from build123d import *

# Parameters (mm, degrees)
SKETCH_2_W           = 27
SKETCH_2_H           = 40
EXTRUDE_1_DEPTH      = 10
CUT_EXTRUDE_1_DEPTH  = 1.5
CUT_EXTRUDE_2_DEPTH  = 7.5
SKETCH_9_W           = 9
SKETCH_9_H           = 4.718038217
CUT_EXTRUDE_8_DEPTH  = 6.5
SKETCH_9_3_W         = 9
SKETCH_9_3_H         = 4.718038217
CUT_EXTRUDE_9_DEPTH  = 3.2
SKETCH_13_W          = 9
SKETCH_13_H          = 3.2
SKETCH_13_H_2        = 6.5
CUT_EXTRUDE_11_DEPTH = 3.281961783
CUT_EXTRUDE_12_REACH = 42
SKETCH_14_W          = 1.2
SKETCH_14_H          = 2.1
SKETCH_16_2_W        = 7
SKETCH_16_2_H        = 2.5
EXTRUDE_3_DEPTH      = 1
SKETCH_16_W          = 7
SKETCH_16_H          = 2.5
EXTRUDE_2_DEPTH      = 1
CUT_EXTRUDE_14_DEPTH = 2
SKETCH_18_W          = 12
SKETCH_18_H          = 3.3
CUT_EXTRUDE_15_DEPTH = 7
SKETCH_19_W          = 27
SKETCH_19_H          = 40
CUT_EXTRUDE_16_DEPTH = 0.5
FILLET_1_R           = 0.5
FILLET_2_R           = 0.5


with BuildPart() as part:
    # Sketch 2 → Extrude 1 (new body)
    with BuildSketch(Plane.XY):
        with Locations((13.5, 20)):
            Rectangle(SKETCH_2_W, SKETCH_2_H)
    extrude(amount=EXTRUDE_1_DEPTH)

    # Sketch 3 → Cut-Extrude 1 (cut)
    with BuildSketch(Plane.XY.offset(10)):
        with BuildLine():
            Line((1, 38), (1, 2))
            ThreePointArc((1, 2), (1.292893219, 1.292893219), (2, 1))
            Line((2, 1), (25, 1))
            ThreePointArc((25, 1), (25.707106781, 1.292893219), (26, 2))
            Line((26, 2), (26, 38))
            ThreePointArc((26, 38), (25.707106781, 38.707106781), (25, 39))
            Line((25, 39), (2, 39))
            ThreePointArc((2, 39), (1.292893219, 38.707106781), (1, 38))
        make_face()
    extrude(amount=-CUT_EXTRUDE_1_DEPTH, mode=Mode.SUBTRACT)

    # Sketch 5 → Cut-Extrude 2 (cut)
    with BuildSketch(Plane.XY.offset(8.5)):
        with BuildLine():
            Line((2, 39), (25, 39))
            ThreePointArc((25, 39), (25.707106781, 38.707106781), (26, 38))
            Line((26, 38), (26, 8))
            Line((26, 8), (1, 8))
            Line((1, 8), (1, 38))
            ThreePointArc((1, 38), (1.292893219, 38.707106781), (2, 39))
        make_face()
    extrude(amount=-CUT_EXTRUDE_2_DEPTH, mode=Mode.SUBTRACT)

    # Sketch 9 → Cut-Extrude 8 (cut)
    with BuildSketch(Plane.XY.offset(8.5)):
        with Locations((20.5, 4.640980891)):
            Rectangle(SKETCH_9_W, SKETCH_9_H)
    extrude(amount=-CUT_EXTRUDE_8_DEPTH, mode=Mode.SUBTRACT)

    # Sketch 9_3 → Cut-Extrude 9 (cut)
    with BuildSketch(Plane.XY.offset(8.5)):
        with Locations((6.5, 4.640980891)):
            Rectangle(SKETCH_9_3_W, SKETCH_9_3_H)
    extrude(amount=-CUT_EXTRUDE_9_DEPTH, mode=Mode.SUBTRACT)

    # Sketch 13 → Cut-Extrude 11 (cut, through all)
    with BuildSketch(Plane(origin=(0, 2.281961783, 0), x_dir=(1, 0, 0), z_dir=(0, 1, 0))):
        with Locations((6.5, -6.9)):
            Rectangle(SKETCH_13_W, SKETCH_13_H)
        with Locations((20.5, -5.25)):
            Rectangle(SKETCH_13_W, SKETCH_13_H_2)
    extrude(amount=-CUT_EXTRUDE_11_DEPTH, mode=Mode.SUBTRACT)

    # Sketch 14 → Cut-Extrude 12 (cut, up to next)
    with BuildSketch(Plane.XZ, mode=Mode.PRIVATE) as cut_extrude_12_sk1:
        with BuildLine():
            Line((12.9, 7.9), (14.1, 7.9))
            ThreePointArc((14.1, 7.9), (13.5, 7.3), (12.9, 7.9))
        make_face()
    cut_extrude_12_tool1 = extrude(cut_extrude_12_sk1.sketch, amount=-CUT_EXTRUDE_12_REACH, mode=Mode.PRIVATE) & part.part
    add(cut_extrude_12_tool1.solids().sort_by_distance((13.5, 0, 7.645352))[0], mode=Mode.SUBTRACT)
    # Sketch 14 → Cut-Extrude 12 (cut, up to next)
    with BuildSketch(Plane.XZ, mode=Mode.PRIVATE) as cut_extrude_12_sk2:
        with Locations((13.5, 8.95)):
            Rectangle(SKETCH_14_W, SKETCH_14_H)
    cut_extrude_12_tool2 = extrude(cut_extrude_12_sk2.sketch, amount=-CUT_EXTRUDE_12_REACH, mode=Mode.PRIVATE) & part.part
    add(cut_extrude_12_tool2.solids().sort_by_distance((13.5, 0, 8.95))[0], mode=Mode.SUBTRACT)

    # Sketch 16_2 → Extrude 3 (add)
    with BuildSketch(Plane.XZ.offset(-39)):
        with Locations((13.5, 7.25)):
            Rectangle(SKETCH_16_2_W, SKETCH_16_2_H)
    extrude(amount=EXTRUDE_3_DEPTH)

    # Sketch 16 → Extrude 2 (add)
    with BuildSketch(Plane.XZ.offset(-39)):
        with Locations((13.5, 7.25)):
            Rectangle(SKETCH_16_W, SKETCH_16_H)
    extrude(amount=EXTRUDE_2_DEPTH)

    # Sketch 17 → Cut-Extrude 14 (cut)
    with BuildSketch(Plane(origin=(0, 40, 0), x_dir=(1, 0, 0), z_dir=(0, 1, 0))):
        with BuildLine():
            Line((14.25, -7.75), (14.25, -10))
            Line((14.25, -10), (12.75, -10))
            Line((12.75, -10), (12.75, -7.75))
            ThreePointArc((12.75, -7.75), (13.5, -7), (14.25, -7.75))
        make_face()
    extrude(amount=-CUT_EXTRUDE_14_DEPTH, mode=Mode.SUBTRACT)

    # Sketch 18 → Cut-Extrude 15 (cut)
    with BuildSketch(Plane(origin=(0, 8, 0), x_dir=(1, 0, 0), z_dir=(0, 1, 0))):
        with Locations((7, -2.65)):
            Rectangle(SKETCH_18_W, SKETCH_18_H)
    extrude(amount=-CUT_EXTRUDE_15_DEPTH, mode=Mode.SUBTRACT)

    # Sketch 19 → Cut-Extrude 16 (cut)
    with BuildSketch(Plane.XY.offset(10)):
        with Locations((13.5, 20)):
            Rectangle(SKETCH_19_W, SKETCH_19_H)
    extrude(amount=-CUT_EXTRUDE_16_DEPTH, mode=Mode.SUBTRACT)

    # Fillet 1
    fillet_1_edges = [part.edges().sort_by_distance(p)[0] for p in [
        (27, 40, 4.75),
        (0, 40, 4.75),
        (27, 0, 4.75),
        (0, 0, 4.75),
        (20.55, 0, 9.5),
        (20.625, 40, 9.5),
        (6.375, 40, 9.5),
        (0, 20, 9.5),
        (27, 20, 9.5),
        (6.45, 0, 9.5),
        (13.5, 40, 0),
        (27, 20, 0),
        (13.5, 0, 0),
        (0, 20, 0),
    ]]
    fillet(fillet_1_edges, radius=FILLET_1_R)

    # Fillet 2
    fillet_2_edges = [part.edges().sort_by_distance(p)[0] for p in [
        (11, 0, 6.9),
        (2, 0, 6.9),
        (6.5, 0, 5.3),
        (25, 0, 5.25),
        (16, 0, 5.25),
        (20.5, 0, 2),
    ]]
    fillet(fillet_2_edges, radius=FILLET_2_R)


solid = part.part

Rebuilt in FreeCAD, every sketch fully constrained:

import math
import FreeCAD as App
import Part
import Sketcher

V = App.Vector


def edges_at(feature, points):
    """Names of the edges that pass closest to the given points."""
    edges = feature.Shape.Edges
    near = lambda p: min(range(len(edges)), key=lambda i: edges[i].distToShape(Part.Vertex(*p))[0])
    return sorted({f"Edge{near(p) + 1}" for p in points})


def add_polygon(sketch, points):
    """Adds a closed chain of lines whose ends are joined by coincident constraints."""
    first, n = sketch.GeometryCount, len(points)
    for a, b in zip(points, points[1:] + points[:1]):
        sketch.addGeometry(Part.LineSegment(App.Vector(*a, 0), App.Vector(*b, 0)), False)
    for i in range(n):
        sketch.addConstraint(Sketcher.Constraint("Coincident", first + i, 2, first + (i + 1) % n, 1))

doc = App.newDocument("Part")
params = doc.addObject("Spreadsheet::Sheet", "Params")
for row, (alias, value) in enumerate([
    ("sketch1_width", "27 mm"),
    ("sketch1_height", "40 mm"),
    ("pad1_length", "10 mm"),
    ("sketch2_radius", "1 mm"),
    ("sketch2_width", "23 mm"),
    ("sketch2_height", "36 mm"),
    ("pocket1_length", "1.5 mm"),
    ("sketch3_radius", "1 mm"),
    ("sketch3_width", "23 mm"),
    ("sketch3_height", "30 mm"),
    ("pocket2_length", "7.5 mm"),
    ("sketch4_width", "9 mm"),
    ("pocket3_length", "6.5 mm"),
    ("sketch5_width", "9 mm"),
    ("pocket4_length", "3.2 mm"),
    ("sketch6_width", "9 mm"),
    ("sketch6_height", "3.2 mm"),
    ("sketch6_height2", "6.5 mm"),
    ("sketch7_radius", "0.6 mm"),
    ("sketch8_width", "1.2 mm"),
    ("sketch8_height", "2.1 mm"),
    ("pocket7_length", "8 mm"),
    ("sketch9_width", "7 mm"),
    ("sketch9_height", "2.5 mm"),
    ("pad2_length", "1 mm"),
    ("sketch10_width", "7 mm"),
    ("sketch10_height", "2.5 mm"),
    ("pad3_length", "1 mm"),
    ("sketch11_radius", "0.75 mm"),
    ("sketch11_height", "2.25 mm"),
    ("pocket8_length", "2 mm"),
    ("sketch12_width", "12 mm"),
    ("sketch12_height", "3.3 mm"),
    ("pocket9_length", "7 mm"),
    ("sketch13_width", "27 mm"),
    ("sketch13_height", "40 mm"),
    ("pocket10_length", "0.5 mm"),
    ("fillet_radius", "0.5 mm"),
    ("fillet2_radius", "0.5 mm"),
], start=1):
    params.set(f"A{row}", alias)
    params.set(f"B{row}", "=" + value)
    params.setAlias(f"B{row}", alias)

body = doc.addObject("PartDesign::Body", "Body")

sketch1 = body.newObject("Sketcher::SketchObject", "Sketch")
sketch1.AttachmentSupport = (doc.getObject("XY_Plane"), [""])
sketch1.MapMode = "FlatFace"
add_polygon(sketch1, [(0, 40), (0, 0), (27, 0), (27, 40)])
sketch1.addConstraint(Sketcher.Constraint("Vertical", 0))
sketch1.addConstraint(Sketcher.Constraint("Horizontal", 1))
sketch1.addConstraint(Sketcher.Constraint("Vertical", 2))
sketch1.addConstraint(Sketcher.Constraint("Horizontal", 3))
sketch1.addConstraint(Sketcher.Constraint("Coincident", 0, 2, -1, 1))
sketch1.addConstraint(Sketcher.Constraint("DistanceX", 1, 1, 1, 2, 27.0))
sketch1.addConstraint(Sketcher.Constraint("DistanceY", 0, 2, 0, 1, 40.0))
sketch1.setExpression("Constraints[9]", "Params.sketch1_width")
sketch1.setExpression("Constraints[10]", "Params.sketch1_height")
pad1 = body.newObject("PartDesign::Pad", "Pad")
pad1.Profile = sketch1
pad1.setExpression("Length", "Params.pad1_length")

sketch2 = body.newObject("Sketcher::SketchObject", "Sketch001")
sketch2.AttachmentSupport = (doc.getObject("XY_Plane"), [""])
sketch2.MapMode = "FlatFace"
sketch2.AttachmentOffset = App.Placement(V(0, 0, 10), App.Rotation())
sketch2.addGeometry(Part.LineSegment(V(1, 38, 0), V(1, 2, 0)), False)
sketch2.addGeometry(Part.ArcOfCircle(Part.Circle(V(2, 2, 0), V(0, 0, 1), 1), math.radians(-180), math.radians(-90)), False)
sketch2.addGeometry(Part.LineSegment(V(2, 1, 0), V(25, 1, 0)), False)
sketch2.addGeometry(Part.ArcOfCircle(Part.Circle(V(25, 2, 0), V(0, 0, 1), 1), math.radians(-90), math.radians(0)), False)
sketch2.addGeometry(Part.LineSegment(V(26, 2, 0), V(26, 38, 0)), False)
sketch2.addGeometry(Part.ArcOfCircle(Part.Circle(V(25, 38, 0), V(0, 0, 1), 1), math.radians(0), math.radians(90)), False)
sketch2.addGeometry(Part.LineSegment(V(25, 39, 0), V(2, 39, 0)), False)
sketch2.addGeometry(Part.ArcOfCircle(Part.Circle(V(2, 38, 0), V(0, 0, 1), 1), math.radians(90), math.radians(180)), False)
sketch2.addConstraint(Sketcher.Constraint("Tangent", 0, 2, 1, 1))
sketch2.addConstraint(Sketcher.Constraint("Tangent", 1, 2, 2, 1))
sketch2.addConstraint(Sketcher.Constraint("Tangent", 2, 2, 3, 1))
sketch2.addConstraint(Sketcher.Constraint("Tangent", 3, 2, 4, 1))
sketch2.addConstraint(Sketcher.Constraint("Tangent", 4, 2, 5, 1))
sketch2.addConstraint(Sketcher.Constraint("Tangent", 5, 2, 6, 1))
sketch2.addConstraint(Sketcher.Constraint("Tangent", 6, 2, 7, 1))
sketch2.addConstraint(Sketcher.Constraint("Tangent", 7, 2, 0, 1))
sketch2.addConstraint(Sketcher.Constraint("Vertical", 0))
sketch2.addConstraint(Sketcher.Constraint("Horizontal", 2))
sketch2.addConstraint(Sketcher.Constraint("Vertical", 4))
sketch2.addConstraint(Sketcher.Constraint("Horizontal", 6))
sketch2.addConstraint(Sketcher.Constraint("Equal", 1, 3))
sketch2.addConstraint(Sketcher.Constraint("Equal", 3, 5))
sketch2.addConstraint(Sketcher.Constraint("Equal", 5, 7))
sketch2.addConstraint(Sketcher.Constraint("Radius", 1, 1.0))
sketch2.addConstraint(Sketcher.Constraint("DistanceX", 2, 1, 2, 2, 23.0))
sketch2.addConstraint(Sketcher.Constraint("DistanceY", 0, 2, 0, 1, 36.0))
sketch2.addConstraint(Sketcher.Constraint("DistanceX", -1, 1, 1, 3, 2.0))
sketch2.addConstraint(Sketcher.Constraint("DistanceY", -1, 1, 1, 3, 2.0))
sketch2.setExpression("Constraints[15]", "Params.sketch2_radius")
sketch2.setExpression("Constraints[16]", "Params.sketch2_width")
sketch2.setExpression("Constraints[17]", "Params.sketch2_height")
pocket1 = body.newObject("PartDesign::Pocket", "Pocket")
pocket1.Profile = sketch2
pocket1.setExpression("Length", "Params.pocket1_length")

sketch3 = body.newObject("Sketcher::SketchObject", "Sketch002")
sketch3.AttachmentSupport = (doc.getObject("XY_Plane"), [""])
sketch3.MapMode = "FlatFace"
sketch3.AttachmentOffset = App.Placement(V(0, 0, 8.5), App.Rotation())
sketch3.addGeometry(Part.LineSegment(V(25, 39, 0), V(2, 39, 0)), False)
sketch3.addGeometry(Part.ArcOfCircle(Part.Circle(V(2, 38, 0), V(0, 0, 1), 1), math.radians(90), math.radians(180)), False)
sketch3.addGeometry(Part.LineSegment(V(1, 38, 0), V(1, 8, 0)), False)
sketch3.addGeometry(Part.LineSegment(V(1, 8, 0), V(26, 8, 0)), False)
sketch3.addGeometry(Part.LineSegment(V(26, 8, 0), V(26, 38, 0)), False)
sketch3.addGeometry(Part.ArcOfCircle(Part.Circle(V(25, 38, 0), V(0, 0, 1), 1), math.radians(0), math.radians(90)), False)
sketch3.addConstraint(Sketcher.Constraint("Tangent", 0, 2, 1, 1))
sketch3.addConstraint(Sketcher.Constraint("Tangent", 1, 2, 2, 1))
sketch3.addConstraint(Sketcher.Constraint("Coincident", 2, 2, 3, 1))
sketch3.addConstraint(Sketcher.Constraint("Coincident", 3, 2, 4, 1))
sketch3.addConstraint(Sketcher.Constraint("Tangent", 4, 2, 5, 1))
sketch3.addConstraint(Sketcher.Constraint("Tangent", 5, 2, 0, 1))
sketch3.addConstraint(Sketcher.Constraint("Horizontal", 0))
sketch3.addConstraint(Sketcher.Constraint("Vertical", 2))
sketch3.addConstraint(Sketcher.Constraint("Horizontal", 3))
sketch3.addConstraint(Sketcher.Constraint("Vertical", 4))
sketch3.addConstraint(Sketcher.Constraint("Equal", 1, 5))
sketch3.addConstraint(Sketcher.Constraint("Radius", 1, 1.0))
sketch3.addConstraint(Sketcher.Constraint("DistanceX", 0, 2, 0, 1, 23.0))
sketch3.addConstraint(Sketcher.Constraint("DistanceY", 2, 2, 2, 1, 30.0))
sketch3.addConstraint(Sketcher.Constraint("DistanceX", -1, 1, 1, 3, 2.0))
sketch3.addConstraint(Sketcher.Constraint("DistanceY", -1, 1, 1, 3, 38.0))
sketch3.setExpression("Constraints[11]", "Params.sketch3_radius")
sketch3.setExpression("Constraints[12]", "Params.sketch3_width")
sketch3.setExpression("Constraints[13]", "Params.sketch3_height")
pocket2 = body.newObject("PartDesign::Pocket", "Pocket001")
pocket2.Profile = sketch3
pocket2.setExpression("Length", "Params.pocket2_length")

sketch4 = body.newObject("Sketcher::SketchObject", "Sketch003")
sketch4.AttachmentSupport = (doc.getObject("XY_Plane"), [""])
sketch4.MapMode = "FlatFace"
sketch4.AttachmentOffset = App.Placement(V(0, 0, 8.5), App.Rotation())
add_polygon(sketch4, [(16, 7), (16, 2.3), (25, 2.3), (25, 7)])
sketch4.addConstraint(Sketcher.Constraint("Vertical", 0))
sketch4.addConstraint(Sketcher.Constraint("Horizontal", 1))
sketch4.addConstraint(Sketcher.Constraint("Vertical", 2))
sketch4.addConstraint(Sketcher.Constraint("Horizontal", 3))
sketch4.addConstraint(Sketcher.Constraint("DistanceX", 1, 1, 1, 2, 9.0))
sketch4.addConstraint(Sketcher.Constraint("DistanceX", -1, 1, 0, 2, 16.0))
sketch4.addConstraint(Sketcher.Constraint("DistanceY", -1, 1, 2, 2, 7.0))
sketch4.addConstraint(Sketcher.Constraint("DistanceY", 0, 2, 0, 1, 4.718038))
sketch4.setExpression("Constraints[8]", "Params.sketch4_width")
pocket3 = body.newObject("PartDesign::Pocket", "Pocket002")
pocket3.Profile = sketch4
pocket3.setExpression("Length", "Params.pocket3_length")

sketch5 = body.newObject("Sketcher::SketchObject", "Sketch004")
sketch5.AttachmentSupport = (doc.getObject("XY_Plane"), [""])
sketch5.MapMode = "FlatFace"
sketch5.AttachmentOffset = App.Placement(V(0, 0, 8.5), App.Rotation())
add_polygon(sketch5, [(2, 7), (2, 2.3), (11, 2.3), (11, 7)])
sketch5.addConstraint(Sketcher.Constraint("Vertical", 0))
sketch5.addConstraint(Sketcher.Constraint("Horizontal", 1))
sketch5.addConstraint(Sketcher.Constraint("Vertical", 2))
sketch5.addConstraint(Sketcher.Constraint("Horizontal", 3))
sketch5.addConstraint(Sketcher.Constraint("DistanceX", 1, 1, 1, 2, 9.0))
sketch5.addConstraint(Sketcher.Constraint("DistanceX", -1, 1, 0, 2, 2.0))
sketch5.addConstraint(Sketcher.Constraint("DistanceY", -1, 1, 2, 2, 7.0))
sketch5.addConstraint(Sketcher.Constraint("DistanceY", 0, 2, 0, 1, 4.718038))
sketch5.setExpression("Constraints[8]", "Params.sketch5_width")
pocket4 = body.newObject("PartDesign::Pocket", "Pocket003")
pocket4.Profile = sketch5
pocket4.setExpression("Length", "Params.pocket4_length")

sketch6 = body.newObject("Sketcher::SketchObject", "Sketch005")
sketch6.AttachmentSupport = (doc.getObject("XZ_Plane"), [""])
sketch6.MapMode = "FlatFace"
sketch6.AttachmentOffset = App.Placement(V(0, 0, -2.281962), App.Rotation())
add_polygon(sketch6, [(2, 5.3), (2, 8.5), (11, 8.5), (11, 5.3)])
add_polygon(sketch6, [(16, 2), (16, 8.5), (25, 8.5), (25, 2)])
sketch6.addConstraint(Sketcher.Constraint("Vertical", 0))
sketch6.addConstraint(Sketcher.Constraint("Horizontal", 1))
sketch6.addConstraint(Sketcher.Constraint("Vertical", 2))
sketch6.addConstraint(Sketcher.Constraint("Horizontal", 3))
sketch6.addConstraint(Sketcher.Constraint("Vertical", 4))
sketch6.addConstraint(Sketcher.Constraint("Horizontal", 5))
sketch6.addConstraint(Sketcher.Constraint("Vertical", 6))
sketch6.addConstraint(Sketcher.Constraint("Horizontal", 7))
sketch6.addConstraint(Sketcher.Constraint("Horizontal", 1, 2, 4, 2))
sketch6.addConstraint(Sketcher.Constraint("Equal", 3, 5))
sketch6.addConstraint(Sketcher.Constraint("DistanceX", 1, 1, 1, 2, 9.0))
sketch6.addConstraint(Sketcher.Constraint("DistanceY", 0, 1, 0, 2, 3.2))
sketch6.addConstraint(Sketcher.Constraint("DistanceY", 4, 1, 4, 2, 6.5))
sketch6.addConstraint(Sketcher.Constraint("DistanceX", -1, 1, 0, 2, 2.0))
sketch6.addConstraint(Sketcher.Constraint("DistanceX", -1, 1, 4, 2, 16.0))
sketch6.addConstraint(Sketcher.Constraint("DistanceY", -1, 1, 6, 2, 2.0))
sketch6.setExpression("Constraints[18]", "Params.sketch6_width")
sketch6.setExpression("Constraints[19]", "Params.sketch6_height")
sketch6.setExpression("Constraints[20]", "Params.sketch6_height2")
pocket5 = body.newObject("PartDesign::Pocket", "Pocket004")
pocket5.Profile = sketch6
pocket5.Type = "ThroughAll"
pocket5.Reversed = True

sketch7 = body.newObject("Sketcher::SketchObject", "Sketch006")
sketch7.AttachmentSupport = (doc.getObject("XZ_Plane"), [""])
sketch7.MapMode = "FlatFace"
sketch7.addGeometry(Part.LineSegment(V(14.1, 7.9, 0), V(12.9, 7.9, 0)), False)
sketch7.addGeometry(Part.ArcOfCircle(Part.Circle(V(13.5, 7.9, 0), V(0, 0, 1), 0.6), math.radians(180), math.radians(360)), False)
sketch7.addConstraint(Sketcher.Constraint("Coincident", 0, 1, 1, 2))
sketch7.addConstraint(Sketcher.Constraint("Coincident", 1, 1, 0, 2))
sketch7.addConstraint(Sketcher.Constraint("Horizontal", 0))
sketch7.addConstraint(Sketcher.Constraint("Horizontal", 1, 3, 0, 1))
sketch7.addConstraint(Sketcher.Constraint("Radius", 1, 0.6))
sketch7.addConstraint(Sketcher.Constraint("DistanceX", -1, 1, 1, 3, 13.5))
sketch7.addConstraint(Sketcher.Constraint("DistanceY", -1, 1, 1, 3, 7.9))
sketch7.setExpression("Constraints[4]", "Params.sketch7_radius")
pocket6 = body.newObject("PartDesign::Pocket", "Pocket005")
pocket6.Profile = sketch7
pocket6.Type = "UpToFirst"

sketch8 = body.newObject("Sketcher::SketchObject", "Sketch007")
sketch8.AttachmentSupport = (doc.getObject("XZ_Plane"), [""])
sketch8.MapMode = "FlatFace"
add_polygon(sketch8, [(12.9, 10), (12.9, 7.9), (14.1, 7.9), (14.1, 10)])
sketch8.addConstraint(Sketcher.Constraint("Vertical", 0))
sketch8.addConstraint(Sketcher.Constraint("Horizontal", 1))
sketch8.addConstraint(Sketcher.Constraint("Vertical", 2))
sketch8.addConstraint(Sketcher.Constraint("Horizontal", 3))
sketch8.addConstraint(Sketcher.Constraint("DistanceX", 1, 1, 1, 2, 1.2))
sketch8.addConstraint(Sketcher.Constraint("DistanceY", 0, 2, 0, 1, 2.1))
sketch8.addConstraint(Sketcher.Constraint("DistanceY", -1, 1, 2, 2, 10.0))
sketch8.addConstraint(Sketcher.Constraint("DistanceX", -1, 1, 0, 2, 12.9))
sketch8.setExpression("Constraints[8]", "Params.sketch8_width")
sketch8.setExpression("Constraints[9]", "Params.sketch8_height")
pocket7 = body.newObject("PartDesign::Pocket", "Pocket006")
pocket7.Profile = sketch8
pocket7.setExpression("Length", "Params.pocket7_length")

sketch9 = body.newObject("Sketcher::SketchObject", "Sketch008")
sketch9.AttachmentSupport = (doc.getObject("XZ_Plane"), [""])
sketch9.MapMode = "FlatFace"
sketch9.AttachmentOffset = App.Placement(V(0, 0, -39), App.Rotation())
add_polygon(sketch9, [(10, 8.5), (10, 6), (17, 6), (17, 8.5)])
sketch9.addConstraint(Sketcher.Constraint("Vertical", 0))
sketch9.addConstraint(Sketcher.Constraint("Horizontal", 1))
sketch9.addConstraint(Sketcher.Constraint("Vertical", 2))
sketch9.addConstraint(Sketcher.Constraint("Horizontal", 3))
sketch9.addConstraint(Sketcher.Constraint("DistanceX", 1, 1, 1, 2, 7.0))
sketch9.addConstraint(Sketcher.Constraint("DistanceY", 0, 2, 0, 1, 2.5))
sketch9.addConstraint(Sketcher.Constraint("DistanceX", -1, 1, 0, 2, 10.0))
sketch9.addConstraint(Sketcher.Constraint("DistanceY", -1, 1, 0, 2, 6.0))
sketch9.setExpression("Constraints[8]", "Params.sketch9_width")
sketch9.setExpression("Constraints[9]", "Params.sketch9_height")
pad2 = body.newObject("PartDesign::Pad", "Pad001")
pad2.Profile = sketch9
pad2.setExpression("Length", "Params.pad2_length")

sketch10 = body.newObject("Sketcher::SketchObject", "Sketch009")
sketch10.AttachmentSupport = (doc.getObject("XZ_Plane"), [""])
sketch10.MapMode = "FlatFace"
sketch10.AttachmentOffset = App.Placement(V(0, 0, -39), App.Rotation())
add_polygon(sketch10, [(10, 8.5), (10, 6), (17, 6), (17, 8.5)])
sketch10.addConstraint(Sketcher.Constraint("Vertical", 0))
sketch10.addConstraint(Sketcher.Constraint("Horizontal", 1))
sketch10.addConstraint(Sketcher.Constraint("Vertical", 2))
sketch10.addConstraint(Sketcher.Constraint("Horizontal", 3))
sketch10.addConstraint(Sketcher.Constraint("DistanceX", 1, 1, 1, 2, 7.0))
sketch10.addConstraint(Sketcher.Constraint("DistanceY", 0, 2, 0, 1, 2.5))
sketch10.addConstraint(Sketcher.Constraint("DistanceX", -1, 1, 0, 2, 10.0))
sketch10.addConstraint(Sketcher.Constraint("DistanceY", -1, 1, 0, 2, 6.0))
sketch10.setExpression("Constraints[8]", "Params.sketch10_width")
sketch10.setExpression("Constraints[9]", "Params.sketch10_height")
pad3 = body.newObject("PartDesign::Pad", "Pad002")
pad3.Profile = sketch10
pad3.setExpression("Length", "Params.pad3_length")

sketch11 = body.newObject("Sketcher::SketchObject", "Sketch010")
sketch11.AttachmentSupport = (doc.getObject("XZ_Plane"), [""])
sketch11.MapMode = "FlatFace"
sketch11.AttachmentOffset = App.Placement(V(0, 0, -40), App.Rotation())
sketch11.addGeometry(Part.LineSegment(V(14.2, 10, 0), V(14.2, 7.8, 0)), False)
sketch11.addGeometry(Part.ArcOfCircle(Part.Circle(V(13.5, 7.8, 0), V(0, 0, 1), 0.8), math.radians(180), math.radians(360)), False)
sketch11.addGeometry(Part.LineSegment(V(12.8, 7.8, 0), V(12.8, 10, 0)), False)
sketch11.addGeometry(Part.LineSegment(V(12.8, 10, 0), V(14.2, 10, 0)), False)
sketch11.addConstraint(Sketcher.Constraint("Tangent", 0, 2, 1, 2))
sketch11.addConstraint(Sketcher.Constraint("Tangent", 1, 1, 2, 1))
sketch11.addConstraint(Sketcher.Constraint("Coincident", 2, 2, 3, 1))
sketch11.addConstraint(Sketcher.Constraint("Coincident", 3, 2, 0, 1))
sketch11.addConstraint(Sketcher.Constraint("Vertical", 0))
sketch11.addConstraint(Sketcher.Constraint("Vertical", 2))
sketch11.addConstraint(Sketcher.Constraint("Horizontal", 3))
sketch11.addConstraint(Sketcher.Constraint("Radius", 1, 0.75))
sketch11.addConstraint(Sketcher.Constraint("DistanceY", -1, 1, 2, 2, 10.0))
sketch11.addConstraint(Sketcher.Constraint("DistanceY", 0, 2, 0, 1, 2.25))
sketch11.addConstraint(Sketcher.Constraint("DistanceX", -1, 1, 1, 3, 13.5))
sketch11.setExpression("Constraints[7]", "Params.sketch11_radius")
sketch11.setExpression("Constraints[9]", "Params.sketch11_height")
pocket8 = body.newObject("PartDesign::Pocket", "Pocket007")
pocket8.Profile = sketch11
pocket8.setExpression("Length", "Params.pocket8_length")
pocket8.Reversed = True

sketch12 = body.newObject("Sketcher::SketchObject", "Sketch011")
sketch12.AttachmentSupport = (doc.getObject("XZ_Plane"), [""])
sketch12.MapMode = "FlatFace"
sketch12.AttachmentOffset = App.Placement(V(0, 0, -8), App.Rotation())
add_polygon(sketch12, [(1, 1), (1, 4.3), (13, 4.3), (13, 1)])
sketch12.addConstraint(Sketcher.Constraint("Vertical", 0))
sketch12.addConstraint(Sketcher.Constraint("Horizontal", 1))
sketch12.addConstraint(Sketcher.Constraint("Vertical", 2))
sketch12.addConstraint(Sketcher.Constraint("Horizontal", 3))
sketch12.addConstraint(Sketcher.Constraint("DistanceX", 1, 1, 1, 2, 12.0))
sketch12.addConstraint(Sketcher.Constraint("DistanceY", 0, 1, 0, 2, 3.3))
sketch12.addConstraint(Sketcher.Constraint("DistanceX", -1, 1, 0, 2, 1.0))
sketch12.addConstraint(Sketcher.Constraint("DistanceY", -1, 1, 2, 2, 1.0))
sketch12.setExpression("Constraints[8]", "Params.sketch12_width")
sketch12.setExpression("Constraints[9]", "Params.sketch12_height")
pocket9 = body.newObject("PartDesign::Pocket", "Pocket008")
pocket9.Profile = sketch12
pocket9.setExpression("Length", "Params.pocket9_length")
pocket9.Reversed = True

sketch13 = body.newObject("Sketcher::SketchObject", "Sketch012")
sketch13.AttachmentSupport = (doc.getObject("XY_Plane"), [""])
sketch13.MapMode = "FlatFace"
sketch13.AttachmentOffset = App.Placement(V(0, 0, 10), App.Rotation())
add_polygon(sketch13, [(0, 40), (0, 0), (27, 0), (27, 40)])
sketch13.addConstraint(Sketcher.Constraint("Vertical", 0))
sketch13.addConstraint(Sketcher.Constraint("Horizontal", 1))
sketch13.addConstraint(Sketcher.Constraint("Vertical", 2))
sketch13.addConstraint(Sketcher.Constraint("Horizontal", 3))
sketch13.addConstraint(Sketcher.Constraint("Coincident", 0, 2, -1, 1))
sketch13.addConstraint(Sketcher.Constraint("DistanceX", 1, 1, 1, 2, 27.0))
sketch13.addConstraint(Sketcher.Constraint("DistanceY", 0, 2, 0, 1, 40.0))
sketch13.setExpression("Constraints[9]", "Params.sketch13_width")
sketch13.setExpression("Constraints[10]", "Params.sketch13_height")
pocket10 = body.newObject("PartDesign::Pocket", "Pocket009")
pocket10.Profile = sketch13
pocket10.setExpression("Length", "Params.pocket10_length")
doc.recompute()

fillet = body.newObject("PartDesign::Fillet", "Fillet")
fillet.Base = (pocket10, edges_at(pocket10, [
    (27, 40, 4.75),
    (0, 40, 4.75),
    (27, 0, 4.75),
    (0, 0, 4.75),
    (20.55, 0, 9.5),
    (20.625, 40, 9.5),
    (6.375, 40, 9.5),
    (0, 20, 9.5),
    (27, 20, 9.5),
    (6.45, 0, 9.5),
    (13.5, 40, 0),
    (27, 20, 0),
    (13.5, 0, 0),
    (0, 20, 0),
]))
fillet.setExpression("Radius", "Params.fillet_radius")
doc.recompute()

fillet2 = body.newObject("PartDesign::Fillet", "Fillet001")
fillet2.Base = (fillet, edges_at(fillet, [
    (11, 0, 6.9),
    (2, 0, 6.9),
    (6.5, 0, 5.3),
    (25, 0, 5.25),
    (16, 0, 5.25),
    (20.5, 0, 2),
]))
fillet2.setExpression("Radius", "Params.fillet2_radius")

doc.recompute()
